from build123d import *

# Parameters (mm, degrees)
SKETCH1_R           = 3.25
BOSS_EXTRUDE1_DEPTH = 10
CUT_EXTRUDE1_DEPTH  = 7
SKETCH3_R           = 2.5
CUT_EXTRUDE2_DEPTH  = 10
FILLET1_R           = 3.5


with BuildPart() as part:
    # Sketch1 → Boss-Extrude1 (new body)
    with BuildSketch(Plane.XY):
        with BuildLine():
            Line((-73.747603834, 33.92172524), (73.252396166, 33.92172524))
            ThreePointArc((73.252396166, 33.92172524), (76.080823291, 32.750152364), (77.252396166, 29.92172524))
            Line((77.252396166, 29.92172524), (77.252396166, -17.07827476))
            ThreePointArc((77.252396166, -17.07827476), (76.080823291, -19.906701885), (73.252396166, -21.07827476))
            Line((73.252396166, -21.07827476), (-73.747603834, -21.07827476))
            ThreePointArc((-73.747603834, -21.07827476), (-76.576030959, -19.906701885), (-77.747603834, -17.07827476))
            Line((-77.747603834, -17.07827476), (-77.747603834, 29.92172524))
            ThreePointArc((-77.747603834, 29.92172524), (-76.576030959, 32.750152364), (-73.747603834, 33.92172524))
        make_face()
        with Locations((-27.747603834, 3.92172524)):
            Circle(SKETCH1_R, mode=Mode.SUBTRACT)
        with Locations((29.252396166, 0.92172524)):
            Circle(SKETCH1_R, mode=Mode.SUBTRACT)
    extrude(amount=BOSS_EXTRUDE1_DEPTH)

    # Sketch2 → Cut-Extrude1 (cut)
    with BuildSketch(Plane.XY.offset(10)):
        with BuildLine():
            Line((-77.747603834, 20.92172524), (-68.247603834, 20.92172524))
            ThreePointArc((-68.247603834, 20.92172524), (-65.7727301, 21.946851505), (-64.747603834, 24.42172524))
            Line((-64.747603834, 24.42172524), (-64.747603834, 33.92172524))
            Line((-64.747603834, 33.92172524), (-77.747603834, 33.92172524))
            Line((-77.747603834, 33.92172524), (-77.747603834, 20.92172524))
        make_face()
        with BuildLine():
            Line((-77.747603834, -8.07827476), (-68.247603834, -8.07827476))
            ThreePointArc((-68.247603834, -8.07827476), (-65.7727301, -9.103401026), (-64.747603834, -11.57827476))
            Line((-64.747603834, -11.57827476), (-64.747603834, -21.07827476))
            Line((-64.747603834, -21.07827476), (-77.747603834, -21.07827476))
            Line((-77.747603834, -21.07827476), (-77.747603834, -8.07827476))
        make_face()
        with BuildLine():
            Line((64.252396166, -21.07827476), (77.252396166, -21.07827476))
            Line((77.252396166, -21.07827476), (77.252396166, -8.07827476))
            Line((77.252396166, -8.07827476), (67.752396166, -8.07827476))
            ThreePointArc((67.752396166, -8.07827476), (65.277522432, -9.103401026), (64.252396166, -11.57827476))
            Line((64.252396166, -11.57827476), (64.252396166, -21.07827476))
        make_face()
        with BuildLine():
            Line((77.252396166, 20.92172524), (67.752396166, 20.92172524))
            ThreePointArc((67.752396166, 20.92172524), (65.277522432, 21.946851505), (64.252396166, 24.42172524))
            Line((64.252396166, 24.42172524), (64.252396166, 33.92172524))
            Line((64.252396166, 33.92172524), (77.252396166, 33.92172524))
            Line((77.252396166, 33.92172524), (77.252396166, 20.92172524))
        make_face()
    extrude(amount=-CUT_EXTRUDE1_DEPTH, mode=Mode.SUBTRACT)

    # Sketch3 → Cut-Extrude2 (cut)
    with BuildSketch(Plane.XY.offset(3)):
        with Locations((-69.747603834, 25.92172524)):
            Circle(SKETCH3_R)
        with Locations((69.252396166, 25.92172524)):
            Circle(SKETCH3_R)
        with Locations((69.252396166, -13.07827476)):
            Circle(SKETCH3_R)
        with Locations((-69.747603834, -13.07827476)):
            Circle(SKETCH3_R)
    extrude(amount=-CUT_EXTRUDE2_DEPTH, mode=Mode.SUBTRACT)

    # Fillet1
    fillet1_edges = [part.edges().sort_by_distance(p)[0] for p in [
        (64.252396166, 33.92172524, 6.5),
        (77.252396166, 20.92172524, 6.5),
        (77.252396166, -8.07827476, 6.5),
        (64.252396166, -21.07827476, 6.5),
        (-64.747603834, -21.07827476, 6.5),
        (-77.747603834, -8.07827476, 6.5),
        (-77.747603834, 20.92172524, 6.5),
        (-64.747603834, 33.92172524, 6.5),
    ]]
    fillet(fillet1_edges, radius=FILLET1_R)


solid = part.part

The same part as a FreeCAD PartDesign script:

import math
import FreeCAD as App
import Part
import Sketcher
from FreeCAD import Vector
Q = App.Units.Quantity


def edges_at(feature, points):
    """Names of the edges that pass closest to the given points."""
    edges = feature.Shape.Edges
    near = lambda p: min(range(len(edges)), key=lambda i: edges[i].distToShape(Part.Vertex(*p))[0])
    return sorted({f"Edge{near(p) + 1}" for p in points})

doc = App.newDocument("Part")
body = doc.addObject("PartDesign::Body", "Body")

# Sketch on XY plane
sketch1 = body.newObject("Sketcher::SketchObject", "Sketch")
sketch1.AttachmentSupport = (doc.getObject("XY_Plane"), [""])
sketch1.MapMode = "FlatFace"
sketch1.addGeometry(Part.LineSegment(Vector(73.252396, 33.921725, 0), Vector(-73.747604, 33.921725, 0)), False)
sketch1.addGeometry(Part.ArcOfCircle(Part.Circle(Vector(-73.747604, 29.921725, 0), Vector(0, 0, 1), 4), math.radians(90), math.radians(180)), False)
sketch1.addGeometry(Part.LineSegment(Vector(-77.747604, 29.921725, 0), Vector(-77.747604, -17.078275, 0)), False)
sketch1.addGeometry(Part.ArcOfCircle(Part.Circle(Vector(-73.747604, -17.078275, 0), Vector(0, 0, 1), 4), math.radians(180), math.radians(270)), False)
sketch1.addGeometry(Part.LineSegment(Vector(-73.747604, -21.078275, 0), Vector(73.252396, -21.078275, 0)), False)
sketch1.addGeometry(Part.ArcOfCircle(Part.Circle(Vector(73.252396, -17.078275, 0), Vector(0, 0, 1), 4), math.radians(-90), math.radians(0)), False)
sketch1.addGeometry(Part.LineSegment(Vector(77.252396, -17.078275, 0), Vector(77.252396, 29.921725, 0)), False)
sketch1.addGeometry(Part.ArcOfCircle(Part.Circle(Vector(73.252396, 29.921725, 0), Vector(0, 0, 1), 4), math.radians(0), math.radians(90)), False)
sketch1.addGeometry(Part.Circle(Vector(29.252396, 0.921725, 0), Vector(0, 0, 1), 3.25), False)
sketch1.addGeometry(Part.Circle(Vector(-27.747604, 3.921725, 0), Vector(0, 0, 1), 3.25), False)
sketch1.addConstraint(Sketcher.Constraint("Tangent", 0, 2, 1, 1))
sketch1.addConstraint(Sketcher.Constraint("Tangent", 1, 2, 2, 1))
sketch1.addConstraint(Sketcher.Constraint("Tangent", 2, 2, 3, 1))
sketch1.addConstraint(Sketcher.Constraint("Tangent", 3, 2, 4, 1))
sketch1.addConstraint(Sketcher.Constraint("Tangent", 4, 2, 5, 1))
sketch1.addConstraint(Sketcher.Constraint("Tangent", 5, 2, 6, 1))
sketch1.addConstraint(Sketcher.Constraint("Tangent", 6, 2, 7, 1))
sketch1.addConstraint(Sketcher.Constraint("Tangent", 7, 2, 0, 1))
sketch1.addConstraint(Sketcher.Constraint("Horizontal", 0))
sketch1.addConstraint(Sketcher.Constraint("Vertical", 2))
sketch1.addConstraint(Sketcher.Constraint("Horizontal", 4))
sketch1.addConstraint(Sketcher.Constraint("Vertical", 6))
sketch1.addConstraint(Sketcher.Constraint("Equal", 1, 3))
sketch1.addConstraint(Sketcher.Constraint("Equal", 3, 5))
sketch1.addConstraint(Sketcher.Constraint("Equal", 5, 7))
sketch1.addConstraint(Sketcher.Constraint("Equal", 8, 9))
sketch1.addConstraint(Sketcher.Constraint("Radius", 1, Q("4 mm")))
sketch1.addConstraint(Sketcher.Constraint("Diameter", 8, Q("6.5 mm")))
sketch1.addConstraint(Sketcher.Constraint("DistanceX", 0, 2, 0, 1, Q("147 mm")))
sketch1.addConstraint(Sketcher.Constraint("DistanceY", 2, 2, 2, 1, Q("47 mm")))
sketch1.addConstraint(Sketcher.Constraint("DistanceX", 8, 3, 5, 3, Q("44 mm")))
sketch1.addConstraint(Sketcher.Constraint("DistanceY", 5, 3, 8, 3, Q("18 mm")))
sketch1.addConstraint(Sketcher.Constraint("DistanceX", 3, 3, 9, 3, Q("46 mm")))
sketch1.addConstraint(Sketcher.Constraint("DistanceY", 3, 3, 9, 3, Q("21 mm")))
sketch1.addConstraint(Sketcher.Constraint("DistanceX", 1, 3, -1, 1, Q("73.747604 mm")))
sketch1.addConstraint(Sketcher.Constraint("DistanceY", -1, 1, 1, 3, Q("29.921725 mm")))
pad1 = body.newObject("PartDesign::Pad", "Pad")
pad1.Profile = sketch1
pad1.Length = 10

# Sketch on XY plane
sketch2 = body.newObject("Sketcher::SketchObject", "Sketch001")
sketch2.AttachmentSupport = (doc.getObject("XY_Plane"), [""])
sketch2.MapMode = "FlatFace"
sketch2.AttachmentOffset = App.Placement(Vector(0, 0, 10), App.Rotation())
sketch2.addGeometry(Part.LineSegment(Vector(-77.747604, 20.921725, 0), Vector(-68.247604, 20.921725, 0)), False)
sketch2.addGeometry(Part.ArcOfCircle(Part.Circle(Vector(-68.247604, 24.421725, 0), Vector(0, 0, 1), 3.5), math.radians(-90), math.radians(0)), False)
sketch2.addGeometry(Part.LineSegment(Vector(-64.747604, 24.421725, 0), Vector(-64.747604, 33.921725, 0)), False)
sketch2.addGeometry(Part.LineSegment(Vector(-64.747604, 33.921725, 0), Vector(-77.747604, 33.921725, 0)), False)
sketch2.addGeometry(Part.LineSegment(Vector(-77.747604, 33.921725, 0), Vector(-77.747604, 20.921725, 0)), False)
sketch2.addGeometry(Part.LineSegment(Vector(-68.247604, -8.078275, 0), Vector(-77.747604, -8.078275, 0)), False)
sketch2.addGeometry(Part.LineSegment(Vector(-77.747604, -8.078275, 0), Vector(-77.747604, -21.078275, 0)), False)
sketch2.addGeometry(Part.LineSegment(Vector(-77.747604, -21.078275, 0), Vector(-64.747604, -21.078275, 0)), False)
sketch2.addGeometry(Part.LineSegment(Vector(-64.747604, -21.078275, 0), Vector(-64.747604, -11.578275, 0)), False)
sketch2.addGeometry(Part.ArcOfCircle(Part.Circle(Vector(-68.247604, -11.578275, 0), Vector(0, 0, 1), 3.5), math.radians(0), math.radians(90)), False)
sketch2.addGeometry(Part.LineSegment(Vector(64.252396, -21.078275, 0), Vector(77.252396, -21.078275, 0)), False)
sketch2.addGeometry(Part.LineSegment(Vector(77.252396, -21.078275, 0), Vector(77.252396, -8.078275, 0)), False)
sketch2.addGeometry(Part.LineSegment(Vector(77.252396, -8.078275, 0), Vector(67.752396, -8.078275, 0)), False)
sketch2.addGeometry(Part.ArcOfCircle(Part.Circle(Vector(67.752396, -11.578275, 0), Vector(0, 0, 1), 3.5), math.radians(90), math.radians(180)), False)
sketch2.addGeometry(Part.LineSegment(Vector(64.252396, -11.578275, 0), Vector(64.252396, -21.078275, 0)), False)
sketch2.addGeometry(Part.LineSegment(Vector(67.752396, 20.921725, 0), Vector(77.252396, 20.921725, 0)), False)
sketch2.addGeometry(Part.LineSegment(Vector(77.252396, 20.921725, 0), Vector(77.252396, 33.921725, 0)), False)
sketch2.addGeometry(Part.LineSegment(Vector(77.252396, 33.921725, 0), Vector(64.252396, 33.921725, 0)), False)
sketch2.addGeometry(Part.LineSegment(Vector(64.252396, 33.921725, 0), Vector(64.252396, 24.421725, 0)), False)
sketch2.addGeometry(Part.ArcOfCircle(Part.Circle(Vector(67.752396, 24.421725, 0), Vector(0, 0, 1), 3.5), math.radians(180), math.radians(270)), False)
sketch2.addConstraint(Sketcher.Constraint("Tangent", 0, 2, 1, 1))
sketch2.addConstraint(Sketcher.Constraint("Tangent", 1, 2, 2, 1))
sketch2.addConstraint(Sketcher.Constraint("Coincident", 2, 2, 3, 1))
sketch2.addConstraint(Sketcher.Constraint("Coincident", 3, 2, 4, 1))
sketch2.addConstraint(Sketcher.Constraint("Coincident", 4, 2, 0, 1))
sketch2.addConstraint(Sketcher.Constraint("Coincident", 5, 2, 6, 1))
sketch2.addConstraint(Sketcher.Constraint("Coincident", 6, 2, 7, 1))
sketch2.addConstraint(Sketcher.Constraint("Coincident", 7, 2, 8, 1))
sketch2.addConstraint(Sketcher.Constraint("Tangent", 8, 2, 9, 1))
sketch2.addConstraint(Sketcher.Constraint("Tangent", 9, 2, 5, 1))
sketch2.addConstraint(Sketcher.Constraint("Coincident", 10, 2, 11, 1))
sketch2.addConstraint(Sketcher.Constraint("Coincident", 11, 2, 12, 1))
sketch2.addConstraint(Sketcher.Constraint("Tangent", 12, 2, 13, 1))
sketch2.addConstraint(Sketcher.Constraint("Tangent", 13, 2, 14, 1))
sketch2.addConstraint(Sketcher.Constraint("Coincident", 14, 2, 10, 1))
sketch2.addConstraint(Sketcher.Constraint("Coincident", 15, 2, 16, 1))
sketch2.addConstraint(Sketcher.Constraint("Coincident", 16, 2, 17, 1))
sketch2.addConstraint(Sketcher.Constraint("Coincident", 17, 2, 18, 1))
sketch2.addConstraint(Sketcher.Constraint("Tangent", 18, 2, 19, 1))
sketch2.addConstraint(Sketcher.Constraint("Tangent", 19, 2, 15, 1))
sketch2.addConstraint(Sketcher.Constraint("Horizontal", 0))
sketch2.addConstraint(Sketcher.Constraint("Vertical", 2))
sketch2.addConstraint(Sketcher.Constraint("Horizontal", 3))
sketch2.addConstraint(Sketcher.Constraint("Vertical", 4))
sketch2.addConstraint(Sketcher.Constraint("Horizontal", 5))
sketch2.addConstraint(Sketcher.Constraint("Vertical", 6))
sketch2.addConstraint(Sketcher.Constraint("Horizontal", 7))
sketch2.addConstraint(Sketcher.Constraint("Vertical", 8))
sketch2.addConstraint(Sketcher.Constraint("Horizontal", 10))
sketch2.addConstraint(Sketcher.Constraint("Vertical", 11))
sketch2.addConstraint(Sketcher.Constraint("Horizontal", 12))
sketch2.addConstraint(Sketcher.Constraint("Vertical", 14))
sketch2.addConstraint(Sketcher.Constraint("Horizontal", 15))
sketch2.addConstraint(Sketcher.Constraint("Vertical", 16))
sketch2.addConstraint(Sketcher.Constraint("Horizontal", 17))
sketch2.addConstraint(Sketcher.Constraint("Vertical", 18))
sketch2.addConstraint(Sketcher.Constraint("Equal", 1, 9))
sketch2.addConstraint(Sketcher.Constraint("Equal", 9, 13))
sketch2.addConstraint(Sketcher.Constraint("Equal", 13, 19))
sketch2.addConstraint(Sketcher.Constraint("Horizontal", 9, 3, 13, 3))
sketch2.addConstraint(Sketcher.Constraint("Horizontal", 1, 3, 19, 3))
sketch2.addConstraint(Sketcher.Constraint("Horizontal", 7, 2, 10, 2))
sketch2.addConstraint(Sketcher.Constraint("Horizontal", 3, 2, 16, 2))
sketch2.addConstraint(Sketcher.Constraint("Vertical", 1, 3, 9, 3))
sketch2.addConstraint(Sketcher.Constraint("Vertical", 13, 3, 19, 3))
sketch2.addConstraint(Sketcher.Constraint("Vertical", 4, 2, 5, 2))
sketch2.addConstraint(Sketcher.Constraint("Vertical", 11, 2, 15, 2))
sketch2.addConstraint(Sketcher.Constraint("Equal", 7, 10))
sketch2.addConstraint(Sketcher.Constraint("Equal", 15, 2))
sketch2.addConstraint(Sketcher.Constraint("Equal", 4, 6))
sketch2.addConstraint(Sketcher.Constraint("Radius", 1, Q("3.5 mm")))
sketch2.addConstraint(Sketcher.Constraint("DistanceX", 3, 2, 3, 1, Q("13 mm")))
sketch2.addConstraint(Sketcher.Constraint("DistanceY", 9, 3, 1, 3, Q("36 mm")))
sketch2.addConstraint(Sketcher.Constraint("DistanceX", 9, 3, 13, 3, Q("136 mm")))
sketch2.addConstraint(Sketcher.Constraint("DistanceX", 1, 3, -1, 1, Q("68.247604 mm")))
sketch2.addConstraint(Sketcher.Constraint("DistanceY", -1, 1, 1, 3, Q("24.421725 mm")))
pocket1 = body.newObject("PartDesign::Pocket", "Pocket")
pocket1.Profile = sketch2
pocket1.Length = 7

# Sketch on XY plane
sketch3 = body.newObject("Sketcher::SketchObject", "Sketch002")
sketch3.AttachmentSupport = (doc.getObject("XY_Plane"), [""])
sketch3.MapMode = "FlatFace"
sketch3.AttachmentOffset = App.Placement(Vector(0, 0, 3), App.Rotation())
sketch3.addGeometry(Part.Circle(Vector(-69.747604, 25.921725, 0), Vector(0, 0, 1), 2.5), False)
sketch3.addGeometry(Part.Circle(Vector(69.252396, 25.921725, 0), Vector(0, 0, 1), 2.5), False)
sketch3.addGeometry(Part.Circle(Vector(69.252396, -13.078275, 0), Vector(0, 0, 1), 2.5), False)
sketch3.addGeometry(Part.Circle(Vector(-69.747604, -13.078275, 0), Vector(0, 0, 1), 2.5), False)
sketch3.addConstraint(Sketcher.Constraint("Equal", 0, 1))
sketch3.addConstraint(Sketcher.Constraint("Equal", 1, 2))
sketch3.addConstraint(Sketcher.Constraint("Equal", 2, 3))
sketch3.addConstraint(Sketcher.Constraint("Horizontal", 0, 3, 1, 3))
sketch3.addConstraint(Sketcher.Constraint("Horizontal", 2, 3, 3, 3))
sketch3.addConstraint(Sketcher.Constraint("Vertical", 1, 3, 2, 3))
sketch3.addConstraint(Sketcher.Constraint("Vertical", 0, 3, 3, 3))
sketch3.addConstraint(Sketcher.Constraint("Diameter", 0, Q("5 mm")))
sketch3.addConstraint(Sketcher.Constraint("DistanceX", 0, 3, 1, 3, Q("139 mm")))
sketch3.addConstraint(Sketcher.Constraint("DistanceY", 2, 3, 1, 3, Q("39 mm")))
sketch3.addConstraint(Sketcher.Constraint("DistanceX", 0, 3, -1, 1, Q("69.747604 mm")))
sketch3.addConstraint(Sketcher.Constraint("DistanceY", -1, 1, 0, 3, Q("25.921725 mm")))
pocket2 = body.newObject("PartDesign::Pocket", "Pocket001")
pocket2.Profile = sketch3
pocket2.Length = 10
doc.recompute()

fillet = body.newObject("PartDesign::Fillet", "Fillet")
fillet.Base = (pocket2, edges_at(pocket2, [
    (64.252, 33.922, 6.5),
    (77.252, 20.922, 6.5),
    (77.252, -8.078, 6.5),
    (64.252, -21.078, 6.5),
    (-64.748, -21.078, 6.5),
    (-77.748, -8.078, 6.5),
    (-77.748, 20.922, 6.5),
    (-64.748, 33.922, 6.5),
]))
fillet.Radius = 3.5

doc.recompute()
